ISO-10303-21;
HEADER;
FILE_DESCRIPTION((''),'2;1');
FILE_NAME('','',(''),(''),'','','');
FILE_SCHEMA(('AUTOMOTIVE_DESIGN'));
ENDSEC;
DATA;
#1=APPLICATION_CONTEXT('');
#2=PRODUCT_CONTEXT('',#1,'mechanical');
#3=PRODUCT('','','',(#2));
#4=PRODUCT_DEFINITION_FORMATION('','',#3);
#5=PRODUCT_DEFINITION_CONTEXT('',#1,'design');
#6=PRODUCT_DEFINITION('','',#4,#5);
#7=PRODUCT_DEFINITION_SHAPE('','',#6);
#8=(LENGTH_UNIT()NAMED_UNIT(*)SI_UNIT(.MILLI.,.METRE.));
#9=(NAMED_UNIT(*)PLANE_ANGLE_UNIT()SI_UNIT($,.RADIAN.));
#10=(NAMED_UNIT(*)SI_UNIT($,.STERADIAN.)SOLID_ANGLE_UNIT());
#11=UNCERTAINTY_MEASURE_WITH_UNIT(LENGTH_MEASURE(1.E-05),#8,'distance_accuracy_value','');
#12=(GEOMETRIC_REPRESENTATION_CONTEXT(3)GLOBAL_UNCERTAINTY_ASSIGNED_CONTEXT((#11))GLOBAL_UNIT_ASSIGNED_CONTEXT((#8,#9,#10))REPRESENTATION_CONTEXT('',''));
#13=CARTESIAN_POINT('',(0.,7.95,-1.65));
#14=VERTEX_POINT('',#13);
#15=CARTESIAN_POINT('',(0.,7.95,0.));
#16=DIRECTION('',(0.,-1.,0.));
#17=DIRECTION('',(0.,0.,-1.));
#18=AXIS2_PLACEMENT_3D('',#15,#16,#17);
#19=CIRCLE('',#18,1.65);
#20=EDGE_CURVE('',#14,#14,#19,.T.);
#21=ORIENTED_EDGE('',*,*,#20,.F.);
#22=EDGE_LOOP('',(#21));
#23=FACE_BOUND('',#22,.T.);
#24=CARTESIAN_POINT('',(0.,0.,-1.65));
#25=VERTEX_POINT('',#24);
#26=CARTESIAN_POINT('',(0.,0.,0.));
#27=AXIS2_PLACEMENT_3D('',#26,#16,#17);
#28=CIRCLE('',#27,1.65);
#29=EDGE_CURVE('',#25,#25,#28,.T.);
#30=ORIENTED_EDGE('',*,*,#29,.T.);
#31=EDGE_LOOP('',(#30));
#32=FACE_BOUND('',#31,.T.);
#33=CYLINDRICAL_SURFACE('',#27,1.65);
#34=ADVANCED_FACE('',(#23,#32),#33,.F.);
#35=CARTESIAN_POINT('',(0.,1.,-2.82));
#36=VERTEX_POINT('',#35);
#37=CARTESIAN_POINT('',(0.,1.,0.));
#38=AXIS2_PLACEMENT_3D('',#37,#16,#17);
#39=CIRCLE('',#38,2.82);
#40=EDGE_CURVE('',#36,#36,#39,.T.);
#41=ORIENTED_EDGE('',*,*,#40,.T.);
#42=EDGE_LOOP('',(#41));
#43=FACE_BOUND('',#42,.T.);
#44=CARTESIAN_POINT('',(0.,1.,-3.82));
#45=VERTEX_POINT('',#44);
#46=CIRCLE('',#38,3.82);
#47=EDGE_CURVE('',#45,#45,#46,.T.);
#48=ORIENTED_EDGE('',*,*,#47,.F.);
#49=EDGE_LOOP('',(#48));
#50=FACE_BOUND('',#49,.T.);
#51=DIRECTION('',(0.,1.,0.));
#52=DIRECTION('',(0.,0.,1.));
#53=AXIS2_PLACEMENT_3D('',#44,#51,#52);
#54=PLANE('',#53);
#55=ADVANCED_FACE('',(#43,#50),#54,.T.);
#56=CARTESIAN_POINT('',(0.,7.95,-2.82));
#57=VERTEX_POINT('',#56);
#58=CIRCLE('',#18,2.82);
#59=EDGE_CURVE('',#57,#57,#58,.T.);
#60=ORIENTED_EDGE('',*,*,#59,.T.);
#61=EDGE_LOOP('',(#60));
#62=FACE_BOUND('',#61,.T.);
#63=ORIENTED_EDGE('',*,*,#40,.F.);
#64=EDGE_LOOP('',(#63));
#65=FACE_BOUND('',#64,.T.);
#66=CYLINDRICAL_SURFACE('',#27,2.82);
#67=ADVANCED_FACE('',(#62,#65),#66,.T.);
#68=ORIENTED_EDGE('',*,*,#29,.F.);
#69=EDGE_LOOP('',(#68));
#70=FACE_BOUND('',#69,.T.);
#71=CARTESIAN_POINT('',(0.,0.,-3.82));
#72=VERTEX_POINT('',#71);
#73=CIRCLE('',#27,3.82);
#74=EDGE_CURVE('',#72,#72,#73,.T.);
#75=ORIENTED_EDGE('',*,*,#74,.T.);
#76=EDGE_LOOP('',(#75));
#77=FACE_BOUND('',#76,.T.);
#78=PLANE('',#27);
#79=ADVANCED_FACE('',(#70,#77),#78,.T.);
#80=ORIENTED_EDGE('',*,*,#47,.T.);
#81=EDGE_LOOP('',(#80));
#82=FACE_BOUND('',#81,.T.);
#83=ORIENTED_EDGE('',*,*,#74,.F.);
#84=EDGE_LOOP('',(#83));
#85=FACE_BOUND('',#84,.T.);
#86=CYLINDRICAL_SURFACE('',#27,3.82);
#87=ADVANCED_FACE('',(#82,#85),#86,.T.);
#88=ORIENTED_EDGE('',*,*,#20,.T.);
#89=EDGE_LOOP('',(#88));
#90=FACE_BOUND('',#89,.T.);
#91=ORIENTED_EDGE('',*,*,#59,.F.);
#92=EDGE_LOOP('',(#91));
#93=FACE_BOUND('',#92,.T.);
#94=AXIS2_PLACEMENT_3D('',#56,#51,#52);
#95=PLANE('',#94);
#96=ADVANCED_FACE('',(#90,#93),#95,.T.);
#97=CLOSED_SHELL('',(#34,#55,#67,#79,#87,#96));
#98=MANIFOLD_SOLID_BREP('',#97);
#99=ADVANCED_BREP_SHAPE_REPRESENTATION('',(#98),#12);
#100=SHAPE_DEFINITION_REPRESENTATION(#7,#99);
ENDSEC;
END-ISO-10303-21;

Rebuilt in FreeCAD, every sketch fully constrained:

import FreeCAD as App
import Part
import Sketcher


def add_polygon(sketch, points):
    """Adds a closed chain of lines whose ends are joined by coincident constraints."""
    first, n = sketch.GeometryCount, len(points)
    for a, b in zip(points, points[1:] + points[:1]):
        sketch.addGeometry(Part.LineSegment(App.Vector(*a, 0), App.Vector(*b, 0)), False)
    for i in range(n):
        sketch.addConstraint(Sketcher.Constraint("Coincident", first + i, 2, first + (i + 1) % n, 1))

doc = App.newDocument("Part")
body = doc.addObject("PartDesign::Body", "Body")

sketch1 = doc.addObject("Sketcher::SketchObject", "Sketch")
body.addObject(sketch1)
sketch1.AttachmentSupport = (doc.YZ_Plane, [""])
sketch1.MapMode = "FlatFace"
add_polygon(sketch1, [(0, 0), (0, -3.82), (1, -3.82), (1, -2.82), (7.95, -2.82), (7.95, 0)])
sketch1.addConstraint([
    Sketcher.Constraint("Vertical", 0),
    Sketcher.Constraint("Horizontal", 1),
    Sketcher.Constraint("Vertical", 2),
    Sketcher.Constraint("Horizontal", 3),
    Sketcher.Constraint("Vertical", 4),
    Sketcher.Constraint("Horizontal", 5),
    Sketcher.Constraint("Coincident", 5, 2, -1, 1),
    Sketcher.Constraint("Equal", 1, 2),
    Sketcher.Constraint("DistanceX", 1, 1, 1, 2, 1.0),
    Sketcher.Constraint("DistanceX", 3, 1, 3, 2, 6.95),
    Sketcher.Constraint("DistanceY", 0, 2, 0, 1, 3.82),
])
revolution = doc.addObject("PartDesign::Revolution", "Revolution")
body.addObject(revolution)
revolution.Profile = sketch1
revolution.ReferenceAxis = (sketch1, ["H_Axis"])
revolution.Angle = 360

sketch2 = doc.addObject("Sketcher::SketchObject", "Sketch001")
body.addObject(sketch2)
sketch2.AttachmentSupport = (doc.XZ_Plane, [""])
sketch2.MapMode = "FlatFace"
sketch2.addGeometry(Part.Circle(App.Vector(0, 0, 0), App.Vector(0, 0, 1), 1.65), False)
sketch2.addConstraint([
    Sketcher.Constraint("Coincident", 0, 3, -1, 1),
    Sketcher.Constraint("Diameter", 0, 3.3),
])
doc.recompute()
hole = doc.addObject("PartDesign::Hole", "Hole")
body.addObject(hole)
hole.Profile = sketch2
hole.ThreadType = "None"
hole.Diameter = 3.3
hole.DepthType = "ThroughAll"

doc.recompute()
